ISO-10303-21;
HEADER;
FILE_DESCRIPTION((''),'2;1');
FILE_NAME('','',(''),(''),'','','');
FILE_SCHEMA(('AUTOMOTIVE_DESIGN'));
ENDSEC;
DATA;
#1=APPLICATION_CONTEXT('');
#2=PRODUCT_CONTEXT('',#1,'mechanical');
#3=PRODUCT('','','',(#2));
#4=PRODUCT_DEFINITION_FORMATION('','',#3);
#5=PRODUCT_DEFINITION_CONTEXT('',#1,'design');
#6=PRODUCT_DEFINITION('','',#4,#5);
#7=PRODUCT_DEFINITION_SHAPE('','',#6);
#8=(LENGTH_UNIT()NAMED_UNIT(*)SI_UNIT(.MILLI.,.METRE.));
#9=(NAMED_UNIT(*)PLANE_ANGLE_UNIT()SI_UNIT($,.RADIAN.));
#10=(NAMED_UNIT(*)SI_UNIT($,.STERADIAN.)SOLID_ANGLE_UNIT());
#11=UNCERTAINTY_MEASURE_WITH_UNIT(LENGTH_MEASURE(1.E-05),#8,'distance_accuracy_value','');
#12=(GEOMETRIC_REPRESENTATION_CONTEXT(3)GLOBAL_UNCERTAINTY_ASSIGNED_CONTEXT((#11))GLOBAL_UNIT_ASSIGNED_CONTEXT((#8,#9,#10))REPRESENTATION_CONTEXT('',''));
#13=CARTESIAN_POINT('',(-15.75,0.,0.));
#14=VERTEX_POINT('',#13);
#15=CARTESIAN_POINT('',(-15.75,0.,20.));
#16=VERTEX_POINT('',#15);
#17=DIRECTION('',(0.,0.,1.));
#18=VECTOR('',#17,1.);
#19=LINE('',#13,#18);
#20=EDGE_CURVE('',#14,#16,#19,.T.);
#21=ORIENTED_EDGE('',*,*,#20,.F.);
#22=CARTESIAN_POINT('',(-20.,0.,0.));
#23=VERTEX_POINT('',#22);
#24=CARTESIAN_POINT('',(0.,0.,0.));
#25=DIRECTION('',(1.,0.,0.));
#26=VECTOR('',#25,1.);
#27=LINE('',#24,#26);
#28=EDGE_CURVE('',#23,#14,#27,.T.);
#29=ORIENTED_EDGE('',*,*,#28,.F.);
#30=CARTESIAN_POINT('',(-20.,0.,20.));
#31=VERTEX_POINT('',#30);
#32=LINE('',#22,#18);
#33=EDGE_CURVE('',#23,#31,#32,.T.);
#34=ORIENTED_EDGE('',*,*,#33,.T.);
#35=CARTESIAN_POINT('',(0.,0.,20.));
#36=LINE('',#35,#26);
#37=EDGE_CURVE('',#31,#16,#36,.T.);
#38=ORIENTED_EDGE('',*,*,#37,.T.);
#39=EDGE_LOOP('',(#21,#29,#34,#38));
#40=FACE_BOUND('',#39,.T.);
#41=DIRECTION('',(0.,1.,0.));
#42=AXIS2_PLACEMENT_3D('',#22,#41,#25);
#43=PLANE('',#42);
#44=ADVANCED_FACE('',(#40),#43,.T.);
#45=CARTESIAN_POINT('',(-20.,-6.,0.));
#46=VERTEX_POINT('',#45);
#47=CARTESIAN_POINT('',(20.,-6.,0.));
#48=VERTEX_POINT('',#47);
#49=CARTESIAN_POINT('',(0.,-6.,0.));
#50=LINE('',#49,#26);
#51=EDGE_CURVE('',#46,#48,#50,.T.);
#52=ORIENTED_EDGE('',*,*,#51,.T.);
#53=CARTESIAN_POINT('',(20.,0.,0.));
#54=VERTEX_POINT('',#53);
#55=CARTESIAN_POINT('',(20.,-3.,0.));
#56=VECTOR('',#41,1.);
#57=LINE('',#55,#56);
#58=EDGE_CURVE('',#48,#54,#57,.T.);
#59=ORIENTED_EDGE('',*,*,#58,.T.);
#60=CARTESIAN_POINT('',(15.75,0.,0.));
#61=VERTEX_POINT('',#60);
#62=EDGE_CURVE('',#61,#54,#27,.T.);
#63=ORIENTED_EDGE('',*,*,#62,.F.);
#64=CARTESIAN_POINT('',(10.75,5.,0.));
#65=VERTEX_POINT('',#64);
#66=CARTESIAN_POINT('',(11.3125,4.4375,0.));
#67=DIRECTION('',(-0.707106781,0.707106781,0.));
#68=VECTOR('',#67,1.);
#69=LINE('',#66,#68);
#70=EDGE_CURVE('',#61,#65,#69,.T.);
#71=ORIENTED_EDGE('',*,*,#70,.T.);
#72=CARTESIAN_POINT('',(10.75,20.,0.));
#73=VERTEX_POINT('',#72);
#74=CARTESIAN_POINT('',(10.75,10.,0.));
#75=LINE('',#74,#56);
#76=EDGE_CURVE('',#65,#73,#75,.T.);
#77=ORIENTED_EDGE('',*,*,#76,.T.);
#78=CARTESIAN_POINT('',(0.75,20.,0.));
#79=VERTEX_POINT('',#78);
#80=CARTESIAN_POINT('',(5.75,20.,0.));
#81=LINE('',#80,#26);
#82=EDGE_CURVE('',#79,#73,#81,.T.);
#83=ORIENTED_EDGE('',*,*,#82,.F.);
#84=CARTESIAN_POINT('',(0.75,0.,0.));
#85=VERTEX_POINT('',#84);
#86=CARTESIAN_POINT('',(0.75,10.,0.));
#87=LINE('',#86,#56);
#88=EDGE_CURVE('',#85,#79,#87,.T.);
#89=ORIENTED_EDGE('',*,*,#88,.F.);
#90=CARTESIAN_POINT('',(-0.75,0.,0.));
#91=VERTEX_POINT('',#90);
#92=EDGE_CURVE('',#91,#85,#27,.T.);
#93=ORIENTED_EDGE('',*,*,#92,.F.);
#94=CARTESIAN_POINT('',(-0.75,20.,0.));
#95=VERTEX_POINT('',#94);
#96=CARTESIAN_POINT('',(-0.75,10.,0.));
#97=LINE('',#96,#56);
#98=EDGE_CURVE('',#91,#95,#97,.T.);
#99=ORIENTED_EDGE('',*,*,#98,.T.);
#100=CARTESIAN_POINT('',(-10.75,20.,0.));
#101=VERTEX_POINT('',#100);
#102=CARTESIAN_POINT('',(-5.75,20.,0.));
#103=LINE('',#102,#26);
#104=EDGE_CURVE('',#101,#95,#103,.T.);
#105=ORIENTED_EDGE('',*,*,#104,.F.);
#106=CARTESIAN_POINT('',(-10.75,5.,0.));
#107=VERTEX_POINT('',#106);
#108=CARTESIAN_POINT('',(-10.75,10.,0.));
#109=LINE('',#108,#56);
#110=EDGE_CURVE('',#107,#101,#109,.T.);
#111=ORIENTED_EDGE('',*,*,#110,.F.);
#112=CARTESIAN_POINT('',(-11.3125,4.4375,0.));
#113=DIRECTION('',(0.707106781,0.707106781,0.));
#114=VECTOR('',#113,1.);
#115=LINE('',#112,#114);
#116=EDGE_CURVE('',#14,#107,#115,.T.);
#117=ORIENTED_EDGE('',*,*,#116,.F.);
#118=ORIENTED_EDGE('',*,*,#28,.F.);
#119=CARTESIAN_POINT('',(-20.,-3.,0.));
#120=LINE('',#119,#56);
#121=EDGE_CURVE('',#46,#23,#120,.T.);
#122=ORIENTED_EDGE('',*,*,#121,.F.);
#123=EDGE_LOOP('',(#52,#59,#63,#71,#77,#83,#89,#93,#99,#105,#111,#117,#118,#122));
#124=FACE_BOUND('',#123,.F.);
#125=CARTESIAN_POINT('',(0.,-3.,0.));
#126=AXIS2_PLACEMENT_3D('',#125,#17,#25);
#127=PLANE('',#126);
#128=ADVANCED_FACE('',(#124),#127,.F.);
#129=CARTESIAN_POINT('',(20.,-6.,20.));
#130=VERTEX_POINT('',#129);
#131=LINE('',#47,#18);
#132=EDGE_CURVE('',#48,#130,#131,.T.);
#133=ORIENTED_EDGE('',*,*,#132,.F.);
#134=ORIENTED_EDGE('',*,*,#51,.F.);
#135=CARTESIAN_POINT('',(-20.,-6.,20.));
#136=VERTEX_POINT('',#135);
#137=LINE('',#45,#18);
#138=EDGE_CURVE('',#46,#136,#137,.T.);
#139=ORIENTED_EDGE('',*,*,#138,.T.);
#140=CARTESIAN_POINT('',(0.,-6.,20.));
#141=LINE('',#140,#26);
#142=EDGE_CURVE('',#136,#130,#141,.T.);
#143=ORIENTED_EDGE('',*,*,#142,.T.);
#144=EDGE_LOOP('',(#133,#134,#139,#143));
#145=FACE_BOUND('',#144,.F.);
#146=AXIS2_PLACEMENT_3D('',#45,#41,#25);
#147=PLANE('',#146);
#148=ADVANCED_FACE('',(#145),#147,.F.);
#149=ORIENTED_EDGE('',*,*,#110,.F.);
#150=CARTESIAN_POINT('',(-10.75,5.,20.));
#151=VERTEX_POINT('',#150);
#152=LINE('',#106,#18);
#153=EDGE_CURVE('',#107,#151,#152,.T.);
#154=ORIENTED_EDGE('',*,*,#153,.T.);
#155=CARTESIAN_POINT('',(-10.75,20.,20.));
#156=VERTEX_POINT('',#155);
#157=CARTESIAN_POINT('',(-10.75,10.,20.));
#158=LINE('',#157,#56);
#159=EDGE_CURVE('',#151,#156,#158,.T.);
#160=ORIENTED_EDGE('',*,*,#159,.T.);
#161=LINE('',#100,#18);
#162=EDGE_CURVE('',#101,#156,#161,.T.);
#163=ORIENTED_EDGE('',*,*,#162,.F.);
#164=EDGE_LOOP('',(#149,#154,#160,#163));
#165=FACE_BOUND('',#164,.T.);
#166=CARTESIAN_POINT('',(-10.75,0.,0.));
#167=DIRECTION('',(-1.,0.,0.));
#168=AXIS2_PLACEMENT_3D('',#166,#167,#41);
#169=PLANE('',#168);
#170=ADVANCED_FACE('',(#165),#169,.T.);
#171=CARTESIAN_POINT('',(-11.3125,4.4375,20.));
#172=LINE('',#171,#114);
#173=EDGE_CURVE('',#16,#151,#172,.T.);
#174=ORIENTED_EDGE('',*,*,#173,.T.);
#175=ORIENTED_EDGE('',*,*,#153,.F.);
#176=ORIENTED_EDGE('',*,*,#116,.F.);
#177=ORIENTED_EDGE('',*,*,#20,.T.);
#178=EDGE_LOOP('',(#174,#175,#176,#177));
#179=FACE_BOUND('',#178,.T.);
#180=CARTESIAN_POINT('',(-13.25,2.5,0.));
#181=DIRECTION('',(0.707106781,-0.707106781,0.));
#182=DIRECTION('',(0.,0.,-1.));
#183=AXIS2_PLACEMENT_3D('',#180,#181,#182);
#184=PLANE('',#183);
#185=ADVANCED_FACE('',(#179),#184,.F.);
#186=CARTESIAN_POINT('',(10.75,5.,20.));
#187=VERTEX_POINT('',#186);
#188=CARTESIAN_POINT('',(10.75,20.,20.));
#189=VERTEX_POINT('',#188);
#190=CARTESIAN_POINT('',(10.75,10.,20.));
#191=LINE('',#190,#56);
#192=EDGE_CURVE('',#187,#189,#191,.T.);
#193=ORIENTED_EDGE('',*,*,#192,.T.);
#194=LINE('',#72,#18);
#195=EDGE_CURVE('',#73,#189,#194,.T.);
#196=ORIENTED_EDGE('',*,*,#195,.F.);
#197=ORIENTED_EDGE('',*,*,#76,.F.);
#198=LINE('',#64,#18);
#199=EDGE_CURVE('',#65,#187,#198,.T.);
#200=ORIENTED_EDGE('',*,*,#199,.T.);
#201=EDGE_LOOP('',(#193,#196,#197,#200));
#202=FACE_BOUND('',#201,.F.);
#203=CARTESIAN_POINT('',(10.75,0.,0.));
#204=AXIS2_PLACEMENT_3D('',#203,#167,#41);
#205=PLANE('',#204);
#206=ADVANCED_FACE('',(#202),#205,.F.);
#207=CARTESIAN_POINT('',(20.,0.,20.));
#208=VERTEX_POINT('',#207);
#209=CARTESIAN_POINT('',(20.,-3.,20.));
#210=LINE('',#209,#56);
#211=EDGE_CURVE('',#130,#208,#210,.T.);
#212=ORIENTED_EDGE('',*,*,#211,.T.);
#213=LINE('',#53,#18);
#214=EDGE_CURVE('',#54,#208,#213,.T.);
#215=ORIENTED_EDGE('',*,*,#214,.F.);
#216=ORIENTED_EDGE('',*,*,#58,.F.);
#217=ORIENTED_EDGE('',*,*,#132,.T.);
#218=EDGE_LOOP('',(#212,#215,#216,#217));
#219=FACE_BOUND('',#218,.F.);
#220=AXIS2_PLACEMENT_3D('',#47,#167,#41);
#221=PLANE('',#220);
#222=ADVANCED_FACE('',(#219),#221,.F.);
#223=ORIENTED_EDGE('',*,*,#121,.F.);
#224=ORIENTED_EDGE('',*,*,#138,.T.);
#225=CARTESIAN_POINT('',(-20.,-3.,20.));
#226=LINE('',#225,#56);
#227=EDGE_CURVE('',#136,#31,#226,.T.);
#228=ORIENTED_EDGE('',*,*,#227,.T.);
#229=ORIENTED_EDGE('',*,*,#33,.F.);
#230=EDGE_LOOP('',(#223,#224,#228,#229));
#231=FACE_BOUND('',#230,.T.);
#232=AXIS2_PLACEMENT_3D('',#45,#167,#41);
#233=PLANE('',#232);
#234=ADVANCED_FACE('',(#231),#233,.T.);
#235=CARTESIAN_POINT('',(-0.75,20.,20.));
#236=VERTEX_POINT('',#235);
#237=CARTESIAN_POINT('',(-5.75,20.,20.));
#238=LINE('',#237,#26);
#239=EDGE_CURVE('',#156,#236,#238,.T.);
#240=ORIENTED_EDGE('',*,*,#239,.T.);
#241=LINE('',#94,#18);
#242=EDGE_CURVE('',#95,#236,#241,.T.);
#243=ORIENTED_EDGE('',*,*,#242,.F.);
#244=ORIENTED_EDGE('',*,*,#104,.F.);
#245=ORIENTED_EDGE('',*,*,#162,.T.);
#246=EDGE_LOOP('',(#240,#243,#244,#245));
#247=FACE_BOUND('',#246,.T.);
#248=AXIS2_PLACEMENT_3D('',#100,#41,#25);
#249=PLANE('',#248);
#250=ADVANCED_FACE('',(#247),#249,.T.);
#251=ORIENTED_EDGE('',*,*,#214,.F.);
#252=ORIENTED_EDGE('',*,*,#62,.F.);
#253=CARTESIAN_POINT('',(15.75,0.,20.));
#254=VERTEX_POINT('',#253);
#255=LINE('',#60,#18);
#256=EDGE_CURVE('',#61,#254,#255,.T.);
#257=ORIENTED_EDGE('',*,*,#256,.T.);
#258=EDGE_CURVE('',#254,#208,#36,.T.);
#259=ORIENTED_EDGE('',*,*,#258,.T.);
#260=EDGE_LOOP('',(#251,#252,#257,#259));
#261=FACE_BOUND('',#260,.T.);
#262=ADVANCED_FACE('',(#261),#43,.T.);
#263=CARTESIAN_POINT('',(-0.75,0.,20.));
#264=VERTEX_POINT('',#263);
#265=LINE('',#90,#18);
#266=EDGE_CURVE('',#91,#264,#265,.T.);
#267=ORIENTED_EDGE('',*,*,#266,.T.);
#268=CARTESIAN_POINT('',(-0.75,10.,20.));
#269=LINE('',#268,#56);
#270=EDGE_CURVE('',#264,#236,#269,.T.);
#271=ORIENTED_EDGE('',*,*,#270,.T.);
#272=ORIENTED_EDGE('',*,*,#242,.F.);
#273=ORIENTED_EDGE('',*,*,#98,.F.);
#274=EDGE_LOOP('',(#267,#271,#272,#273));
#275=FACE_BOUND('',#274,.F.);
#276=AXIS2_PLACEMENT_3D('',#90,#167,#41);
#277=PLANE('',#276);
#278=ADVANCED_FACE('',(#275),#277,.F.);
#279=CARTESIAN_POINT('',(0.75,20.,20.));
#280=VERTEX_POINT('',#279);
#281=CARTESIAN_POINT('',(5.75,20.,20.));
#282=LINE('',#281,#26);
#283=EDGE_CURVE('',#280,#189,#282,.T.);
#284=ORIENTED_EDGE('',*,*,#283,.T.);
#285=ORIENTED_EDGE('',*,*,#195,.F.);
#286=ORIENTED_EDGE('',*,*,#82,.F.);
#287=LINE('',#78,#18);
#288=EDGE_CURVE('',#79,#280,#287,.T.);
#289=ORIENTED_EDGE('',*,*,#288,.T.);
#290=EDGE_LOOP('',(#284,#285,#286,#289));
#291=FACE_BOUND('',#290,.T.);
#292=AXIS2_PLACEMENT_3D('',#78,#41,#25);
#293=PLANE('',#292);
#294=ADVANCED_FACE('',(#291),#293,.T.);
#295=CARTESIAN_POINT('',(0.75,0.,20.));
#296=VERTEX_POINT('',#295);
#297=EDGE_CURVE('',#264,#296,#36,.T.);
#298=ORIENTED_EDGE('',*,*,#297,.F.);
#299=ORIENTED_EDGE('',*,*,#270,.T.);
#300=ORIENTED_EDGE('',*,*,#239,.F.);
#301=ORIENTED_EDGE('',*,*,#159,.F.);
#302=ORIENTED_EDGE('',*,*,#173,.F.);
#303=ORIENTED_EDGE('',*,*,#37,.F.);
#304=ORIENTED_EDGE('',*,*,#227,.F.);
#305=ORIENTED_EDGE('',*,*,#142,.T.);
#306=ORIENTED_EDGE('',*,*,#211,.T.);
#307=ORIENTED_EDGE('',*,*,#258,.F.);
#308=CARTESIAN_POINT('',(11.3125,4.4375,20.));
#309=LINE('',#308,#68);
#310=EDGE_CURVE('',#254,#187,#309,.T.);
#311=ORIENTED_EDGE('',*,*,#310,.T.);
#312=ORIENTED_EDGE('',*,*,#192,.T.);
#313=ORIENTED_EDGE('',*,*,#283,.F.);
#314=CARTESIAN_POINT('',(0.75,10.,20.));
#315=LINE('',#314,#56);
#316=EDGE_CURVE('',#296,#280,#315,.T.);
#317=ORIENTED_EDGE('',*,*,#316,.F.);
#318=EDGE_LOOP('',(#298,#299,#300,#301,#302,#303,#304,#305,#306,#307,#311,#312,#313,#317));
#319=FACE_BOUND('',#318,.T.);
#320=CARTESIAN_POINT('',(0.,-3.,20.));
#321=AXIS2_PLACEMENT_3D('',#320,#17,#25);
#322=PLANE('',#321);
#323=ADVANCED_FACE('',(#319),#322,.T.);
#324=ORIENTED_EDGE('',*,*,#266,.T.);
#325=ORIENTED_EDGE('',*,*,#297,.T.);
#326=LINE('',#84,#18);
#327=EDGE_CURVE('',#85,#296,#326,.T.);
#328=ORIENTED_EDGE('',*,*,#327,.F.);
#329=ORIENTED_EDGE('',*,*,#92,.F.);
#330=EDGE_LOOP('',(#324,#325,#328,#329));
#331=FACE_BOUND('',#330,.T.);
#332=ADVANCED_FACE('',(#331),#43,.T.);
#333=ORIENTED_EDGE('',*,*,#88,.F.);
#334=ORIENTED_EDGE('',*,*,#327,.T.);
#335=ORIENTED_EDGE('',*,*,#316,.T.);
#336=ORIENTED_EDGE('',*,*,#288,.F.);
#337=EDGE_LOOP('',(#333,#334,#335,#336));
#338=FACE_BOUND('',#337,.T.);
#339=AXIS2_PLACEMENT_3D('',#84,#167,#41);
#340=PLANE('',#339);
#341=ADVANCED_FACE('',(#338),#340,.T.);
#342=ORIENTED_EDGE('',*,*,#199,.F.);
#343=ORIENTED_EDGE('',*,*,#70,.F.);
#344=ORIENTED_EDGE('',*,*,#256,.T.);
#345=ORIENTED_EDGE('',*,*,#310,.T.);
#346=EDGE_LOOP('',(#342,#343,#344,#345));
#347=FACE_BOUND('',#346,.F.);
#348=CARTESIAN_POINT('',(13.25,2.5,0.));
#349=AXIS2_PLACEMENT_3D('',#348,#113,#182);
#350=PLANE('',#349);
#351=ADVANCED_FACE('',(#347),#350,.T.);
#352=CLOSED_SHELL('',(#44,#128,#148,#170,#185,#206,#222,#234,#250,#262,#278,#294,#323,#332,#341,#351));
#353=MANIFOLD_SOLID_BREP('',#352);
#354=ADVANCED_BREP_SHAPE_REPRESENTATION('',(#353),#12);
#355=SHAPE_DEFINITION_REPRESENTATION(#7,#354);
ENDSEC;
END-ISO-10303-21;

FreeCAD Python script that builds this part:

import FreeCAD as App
import Part
import Sketcher


def edges_at(feature, points):
    """Names of the edges that pass closest to the given points."""
    edges = feature.Shape.Edges
    near = lambda p: min(range(len(edges)), key=lambda i: edges[i].distToShape(Part.Vertex(*p))[0])
    return sorted({f"Edge{near(p) + 1}" for p in points})

doc = App.newDocument("Part")
body = doc.addObject("PartDesign::Body", "Body")

sketch1 = body.newObject("Sketcher::SketchObject", "Sketch")
sketch1.AttachmentSupport = (doc.getObject("XY_Plane"), [""])
sketch1.MapMode = "FlatFace"
sketch1.addGeometry(Part.LineSegment(App.Vector(-11, 20, 0), App.Vector(-11, 0, 0)), False)
sketch1.addGeometry(Part.LineSegment(App.Vector(-11, 0, 0), App.Vector(-1, 0, 0)), False)
sketch1.addGeometry(Part.LineSegment(App.Vector(-1, 0, 0), App.Vector(-1, 20, 0)), False)
sketch1.addGeometry(Part.LineSegment(App.Vector(-1, 20, 0), App.Vector(-11, 20, 0)), False)
sketch1.addConstraint(Sketcher.Constraint("Coincident", 0, 2, 1, 1))
sketch1.addConstraint(Sketcher.Constraint("Coincident", 1, 2, 2, 1))
sketch1.addConstraint(Sketcher.Constraint("Coincident", 2, 2, 3, 1))
sketch1.addConstraint(Sketcher.Constraint("Coincident", 3, 2, 0, 1))
sketch1.addConstraint(Sketcher.Constraint("Vertical", 0))
sketch1.addConstraint(Sketcher.Constraint("Horizontal", 1))
sketch1.addConstraint(Sketcher.Constraint("Vertical", 2))
sketch1.addConstraint(Sketcher.Constraint("Horizontal", 3))
sketch1.addConstraint(Sketcher.Constraint("PointOnObject", 0, 2, -1))
sketch1.addConstraint(Sketcher.Constraint("DistanceX", 1, 1, 1, 2, 10.0))
sketch1.addConstraint(Sketcher.Constraint("DistanceY", 0, 2, 0, 1, 20.0))
sketch1.addConstraint(Sketcher.Constraint("DistanceX", 0, 2, -1, 1, 10.75))
pad1 = body.newObject("PartDesign::Pad", "Pad")
pad1.Profile = sketch1
pad1.Length = 20
body2 = doc.addObject("PartDesign::Body", "Body001")

sketch2 = body2.newObject("Sketcher::SketchObject", "Sketch001")
sketch2.AttachmentSupport = (doc.getObject("XY_Plane001"), [""])
sketch2.MapMode = "FlatFace"
sketch2.addGeometry(Part.LineSegment(App.Vector(1, 20, 0), App.Vector(1, 0, 0)), False)
sketch2.addGeometry(Part.LineSegment(App.Vector(1, 0, 0), App.Vector(11, 0, 0)), False)
sketch2.addGeometry(Part.LineSegment(App.Vector(11, 0, 0), App.Vector(11, 20, 0)), False)
sketch2.addGeometry(Part.LineSegment(App.Vector(11, 20, 0), App.Vector(1, 20, 0)), False)
sketch2.addConstraint(Sketcher.Constraint("Coincident", 0, 2, 1, 1))
sketch2.addConstraint(Sketcher.Constraint("Coincident", 1, 2, 2, 1))
sketch2.addConstraint(Sketcher.Constraint("Coincident", 2, 2, 3, 1))
sketch2.addConstraint(Sketcher.Constraint("Coincident", 3, 2, 0, 1))
sketch2.addConstraint(Sketcher.Constraint("Vertical", 0))
sketch2.addConstraint(Sketcher.Constraint("Horizontal", 1))
sketch2.addConstraint(Sketcher.Constraint("Vertical", 2))
sketch2.addConstraint(Sketcher.Constraint("Horizontal", 3))
sketch2.addConstraint(Sketcher.Constraint("PointOnObject", 0, 2, -1))
sketch2.addConstraint(Sketcher.Constraint("DistanceX", 1, 1, 1, 2, 10.0))
sketch2.addConstraint(Sketcher.Constraint("DistanceY", 0, 2, 0, 1, 20.0))
sketch2.addConstraint(Sketcher.Constraint("DistanceX", -1, 1, 0, 2, 0.75))
pad2 = body2.newObject("PartDesign::Pad", "Pad001")
pad2.Profile = sketch2
pad2.Length = 20
body3 = doc.addObject("PartDesign::Body", "Body002")

sketch3 = body3.newObject("Sketcher::SketchObject", "Sketch002")
sketch3.AttachmentSupport = (doc.getObject("XY_Plane002"), [""])
sketch3.MapMode = "FlatFace"
sketch3.addGeometry(Part.LineSegment(App.Vector(-20, 0, 0), App.Vector(-20, -6, 0)), False)
sketch3.addGeometry(Part.LineSegment(App.Vector(-20, -6, 0), App.Vector(20, -6, 0)), False)
sketch3.addGeometry(Part.LineSegment(App.Vector(20, -6, 0), App.Vector(20, 0, 0)), False)
sketch3.addGeometry(Part.LineSegment(App.Vector(20, 0, 0), App.Vector(-20, 0, 0)), False)
sketch3.addConstraint(Sketcher.Constraint("Coincident", 0, 2, 1, 1))
sketch3.addConstraint(Sketcher.Constraint("Coincident", 1, 2, 2, 1))
sketch3.addConstraint(Sketcher.Constraint("Coincident", 2, 2, 3, 1))
sketch3.addConstraint(Sketcher.Constraint("Coincident", 3, 2, 0, 1))
sketch3.addConstraint(Sketcher.Constraint("Vertical", 0))
sketch3.addConstraint(Sketcher.Constraint("Horizontal", 1))
sketch3.addConstraint(Sketcher.Constraint("Vertical", 2))
sketch3.addConstraint(Sketcher.Constraint("Horizontal", 3))
sketch3.addConstraint(Sketcher.Constraint("Symmetric", 2, 2, 3, 2, -1, 1))
sketch3.addConstraint(Sketcher.Constraint("DistanceX", 1, 1, 1, 2, 40.0))
sketch3.addConstraint(Sketcher.Constraint("DistanceY", 0, 2, 0, 1, 6.0))
pad3 = body3.newObject("PartDesign::Pad", "Pad002")
pad3.Profile = sketch3
pad3.Length = 20
doc.recompute()

boolean = body3.newObject("PartDesign::Boolean", "Boolean")
boolean.Type = "Fuse"
boolean.addObjects([body])
doc.recompute()

boolean2 = body3.newObject("PartDesign::Boolean", "Boolean001")
boolean2.Type = "Fuse"
boolean2.addObjects([body2])
doc.recompute()

chamfer = body3.newObject("PartDesign::Chamfer", "Chamfer")
chamfer.Base = (boolean2, edges_at(boolean2, [(-10.75, 0, 10), (10.75, 0, 10)]))
chamfer.Size = 5

doc.recompute()
